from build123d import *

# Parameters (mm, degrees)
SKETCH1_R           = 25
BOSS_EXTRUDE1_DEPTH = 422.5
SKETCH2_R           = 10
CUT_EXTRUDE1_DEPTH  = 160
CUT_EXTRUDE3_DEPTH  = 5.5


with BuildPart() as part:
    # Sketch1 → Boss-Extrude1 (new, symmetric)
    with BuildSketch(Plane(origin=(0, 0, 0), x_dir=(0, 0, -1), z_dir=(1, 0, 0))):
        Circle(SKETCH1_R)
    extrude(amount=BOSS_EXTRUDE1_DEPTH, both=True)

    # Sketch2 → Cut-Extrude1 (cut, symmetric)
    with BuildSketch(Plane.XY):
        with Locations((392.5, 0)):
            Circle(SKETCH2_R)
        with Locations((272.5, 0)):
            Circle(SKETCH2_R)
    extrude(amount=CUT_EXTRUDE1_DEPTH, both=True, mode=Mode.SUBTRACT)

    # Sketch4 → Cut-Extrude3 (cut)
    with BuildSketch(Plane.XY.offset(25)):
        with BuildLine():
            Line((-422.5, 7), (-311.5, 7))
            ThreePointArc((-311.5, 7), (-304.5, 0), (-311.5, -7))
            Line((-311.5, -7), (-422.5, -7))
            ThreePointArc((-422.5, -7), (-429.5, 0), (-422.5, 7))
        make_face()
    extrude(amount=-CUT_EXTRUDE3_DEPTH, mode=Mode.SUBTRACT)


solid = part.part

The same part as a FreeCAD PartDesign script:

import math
import FreeCAD as App
import Part
import Sketcher

V = App.Vector
Q = App.Units.Quantity

doc = App.newDocument("Part")
body = doc.addObject("PartDesign::Body", "Body")

# Sketch on YZ plane
sketch1 = body.newObject("Sketcher::SketchObject", "Sketch")
sketch1.AttachmentSupport = (doc.getObject("YZ_Plane"), [""])
sketch1.MapMode = "FlatFace"
sketch1.addGeometry(Part.Circle(V(0, 0, 0), V(0, 0, 1), 25), False)
sketch1.addConstraint([
    Sketcher.Constraint("Coincident", 0, 3, -1, 1),
    Sketcher.Constraint("Diameter", 0, Q("50 mm")),
])
pad1 = body.newObject("PartDesign::Pad", "Pad")
pad1.Profile = sketch1
pad1.Length = 845
pad1.Midplane = True

# Sketch on XY plane
sketch2 = body.newObject("Sketcher::SketchObject", "Sketch001")
sketch2.AttachmentSupport = (doc.getObject("XY_Plane"), [""])
sketch2.MapMode = "FlatFace"
sketch2.addGeometry([
    Part.Circle(V(392, 0, 0), V(0, 0, 1), 10),
    Part.Circle(V(272, 0, 0), V(0, 0, 1), 10),
], False)
sketch2.addConstraint([
    Sketcher.Constraint("Equal", 0, 1),
    Sketcher.Constraint("PointOnObject", 0, 3, -1),
    Sketcher.Constraint("PointOnObject", 1, 3, -1),
    Sketcher.Constraint("Diameter", 0, Q("20 mm")),
    Sketcher.Constraint("DistanceX", 1, 3, 0, 3, Q("120 mm")),
    Sketcher.Constraint("DistanceX", -1, 1, 0, 3, Q("392.5 mm")),
])
pocket1 = body.newObject("PartDesign::Pocket", "Pocket")
pocket1.Profile = sketch2
pocket1.Length = 320
pocket1.Midplane = True

# Sketch on XY plane
sketch3 = body.newObject("Sketcher::SketchObject", "Sketch002")
sketch3.AttachmentSupport = (doc.getObject("XY_Plane"), [""])
sketch3.MapMode = "FlatFace"
sketch3.AttachmentOffset = App.Placement(V(0, 0, 25), App.Rotation())
sketch3.addGeometry([
    Part.LineSegment(V(-312, 7, 0), V(-422, 7, 0)),
    Part.ArcOfCircle(Part.Circle(V(-422, 0, 0), V(0, 0, 1), 7), math.radians(90), math.radians(270)),
    Part.LineSegment(V(-422, -7, 0), V(-312, -7, 0)),
    Part.ArcOfCircle(Part.Circle(V(-312, 0, 0), V(0, 0, 1), 7), math.radians(-90), math.radians(90)),
], False)
sketch3.addConstraint([
    Sketcher.Constraint("Tangent", 0, 2, 1, 1),
    Sketcher.Constraint("Tangent", 1, 2, 2, 1),
    Sketcher.Constraint("Tangent", 2, 2, 3, 1),
    Sketcher.Constraint("Tangent", 3, 2, 0, 1),
    Sketcher.Constraint("Horizontal", 0),
    Sketcher.Constraint("Horizontal", 2),
    Sketcher.Constraint("PointOnObject", 1, 3, -1),
    Sketcher.Constraint("Radius", 1, Q("7 mm")),
    Sketcher.Constraint("DistanceX", 0, 2, 0, 1, Q("111 mm")),
    Sketcher.Constraint("DistanceX", 1, 3, -1, 1, Q("422.5 mm")),
])
pocket2 = body.newObject("PartDesign::Pocket", "Pocket001")
pocket2.Profile = sketch3
pocket2.Length = 5.5

doc.recompute()
